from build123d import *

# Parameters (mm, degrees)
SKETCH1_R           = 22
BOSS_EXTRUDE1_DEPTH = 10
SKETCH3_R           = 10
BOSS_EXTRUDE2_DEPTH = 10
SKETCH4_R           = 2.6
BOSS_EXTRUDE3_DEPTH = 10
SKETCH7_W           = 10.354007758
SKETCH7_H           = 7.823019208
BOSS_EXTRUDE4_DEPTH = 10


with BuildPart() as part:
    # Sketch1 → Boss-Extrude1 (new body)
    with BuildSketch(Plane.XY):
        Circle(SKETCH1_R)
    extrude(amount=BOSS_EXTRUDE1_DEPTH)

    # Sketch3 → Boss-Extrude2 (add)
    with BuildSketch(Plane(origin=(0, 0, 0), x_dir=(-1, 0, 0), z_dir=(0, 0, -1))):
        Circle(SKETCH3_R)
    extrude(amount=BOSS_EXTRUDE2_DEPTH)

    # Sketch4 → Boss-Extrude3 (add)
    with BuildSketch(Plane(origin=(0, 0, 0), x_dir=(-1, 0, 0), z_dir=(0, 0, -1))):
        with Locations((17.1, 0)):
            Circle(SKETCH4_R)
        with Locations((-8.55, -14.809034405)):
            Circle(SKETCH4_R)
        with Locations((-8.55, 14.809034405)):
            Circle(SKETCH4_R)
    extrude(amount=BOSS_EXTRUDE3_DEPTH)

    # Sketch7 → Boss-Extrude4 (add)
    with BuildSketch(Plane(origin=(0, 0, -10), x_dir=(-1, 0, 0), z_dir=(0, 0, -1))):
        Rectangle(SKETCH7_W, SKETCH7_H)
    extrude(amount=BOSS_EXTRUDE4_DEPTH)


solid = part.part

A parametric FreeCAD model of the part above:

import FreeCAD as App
import Part
import Sketcher

doc = App.newDocument("Part")
body = doc.addObject("PartDesign::Body", "Body")

sketch1 = body.newObject("Sketcher::SketchObject", "Sketch")
sketch1.AttachmentSupport = (doc.getObject("XY_Plane"), [""])
sketch1.MapMode = "FlatFace"
sketch1.addGeometry(Part.Circle(App.Vector(0, 0, 0), App.Vector(0, 0, 1), 22), False)
sketch1.addConstraint(Sketcher.Constraint("Coincident", 0, 3, -1, 1))
sketch1.addConstraint(Sketcher.Constraint("Diameter", 0, 44.0))
pad1 = body.newObject("PartDesign::Pad", "Pad")
pad1.Profile = sketch1
pad1.Length = 10

sketch2 = body.newObject("Sketcher::SketchObject", "Sketch001")
sketch2.AttachmentSupport = (doc.getObject("XY_Plane"), [""])
sketch2.MapMode = "FlatFace"
sketch2.addGeometry(Part.Circle(App.Vector(0, 0, 0), App.Vector(0, 0, 1), 10), False)
sketch2.addConstraint(Sketcher.Constraint("Coincident", 0, 3, -1, 1))
sketch2.addConstraint(Sketcher.Constraint("Diameter", 0, 20.0))
pad2 = body.newObject("PartDesign::Pad", "Pad001")
pad2.Profile = sketch2
pad2.Length = 10
pad2.Reversed = True

sketch3 = body.newObject("Sketcher::SketchObject", "Sketch002")
sketch3.AttachmentSupport = (doc.getObject("XY_Plane"), [""])
sketch3.MapMode = "FlatFace"
sketch3.addGeometry(Part.Circle(App.Vector(-17.1, 0, 0), App.Vector(0, 0, 1), 2.6), False)
sketch3.addGeometry(Part.Circle(App.Vector(8.6, -14.8, 0), App.Vector(0, 0, 1), 2.6), False)
sketch3.addGeometry(Part.Circle(App.Vector(8.6, 14.8, 0), App.Vector(0, 0, 1), 2.6), False)
sketch3.addConstraint(Sketcher.Constraint("Equal", 0, 1))
sketch3.addConstraint(Sketcher.Constraint("Equal", 1, 2))
sketch3.addConstraint(Sketcher.Constraint("Symmetric", 1, 3, 2, 3, -1))
sketch3.addConstraint(Sketcher.Constraint("PointOnObject", 0, 3, -1))
sketch3.addConstraint(Sketcher.Constraint("Diameter", 0, 5.2))
sketch3.addConstraint(Sketcher.Constraint("DistanceX", 0, 3, -1, 1, 17.1))
sketch3.addConstraint(Sketcher.Constraint("DistanceX", -1, 1, 1, 3, 8.55))
sketch3.addConstraint(Sketcher.Constraint("DistanceY", 1, 3, 2, 3, 29.618069))
pad3 = body.newObject("PartDesign::Pad", "Pad002")
pad3.Profile = sketch3
pad3.Length = 10
pad3.Reversed = True

sketch4 = body.newObject("Sketcher::SketchObject", "Sketch003")
sketch4.AttachmentSupport = (doc.getObject("XY_Plane"), [""])
sketch4.MapMode = "FlatFace"
sketch4.AttachmentOffset = App.Placement(App.Vector(0, 0, -10), App.Rotation())
sketch4.addGeometry(Part.LineSegment(App.Vector(5, 4, 0), App.Vector(5, -4, 0)), False)
sketch4.addGeometry(Part.LineSegment(App.Vector(5, -4, 0), App.Vector(-5, -4, 0)), False)
sketch4.addGeometry(Part.LineSegment(App.Vector(-5, -4, 0), App.Vector(-5, 4, 0)), False)
sketch4.addGeometry(Part.LineSegment(App.Vector(-5, 4, 0), App.Vector(5, 4, 0)), False)
sketch4.addConstraint(Sketcher.Constraint("Coincident", 0, 2, 1, 1))
sketch4.addConstraint(Sketcher.Constraint("Coincident", 1, 2, 2, 1))
sketch4.addConstraint(Sketcher.Constraint("Coincident", 2, 2, 3, 1))
sketch4.addConstraint(Sketcher.Constraint("Coincident", 3, 2, 0, 1))
sketch4.addConstraint(Sketcher.Constraint("Vertical", 0))
sketch4.addConstraint(Sketcher.Constraint("Horizontal", 1))
sketch4.addConstraint(Sketcher.Constraint("Vertical", 2))
sketch4.addConstraint(Sketcher.Constraint("Horizontal", 3))
sketch4.addConstraint(Sketcher.Constraint("Symmetric", 0, 2, 2, 2, -1, 1))
sketch4.addConstraint(Sketcher.Constraint("DistanceY", 0, 2, 0, 1, 7.823019))
sketch4.addConstraint(Sketcher.Constraint("DistanceX", 1, 2, 1, 1, 10.354008))
pad4 = body.newObject("PartDesign::Pad", "Pad003")
pad4.Profile = sketch4
pad4.Length = 10
pad4.Reversed = True

doc.recompute()
